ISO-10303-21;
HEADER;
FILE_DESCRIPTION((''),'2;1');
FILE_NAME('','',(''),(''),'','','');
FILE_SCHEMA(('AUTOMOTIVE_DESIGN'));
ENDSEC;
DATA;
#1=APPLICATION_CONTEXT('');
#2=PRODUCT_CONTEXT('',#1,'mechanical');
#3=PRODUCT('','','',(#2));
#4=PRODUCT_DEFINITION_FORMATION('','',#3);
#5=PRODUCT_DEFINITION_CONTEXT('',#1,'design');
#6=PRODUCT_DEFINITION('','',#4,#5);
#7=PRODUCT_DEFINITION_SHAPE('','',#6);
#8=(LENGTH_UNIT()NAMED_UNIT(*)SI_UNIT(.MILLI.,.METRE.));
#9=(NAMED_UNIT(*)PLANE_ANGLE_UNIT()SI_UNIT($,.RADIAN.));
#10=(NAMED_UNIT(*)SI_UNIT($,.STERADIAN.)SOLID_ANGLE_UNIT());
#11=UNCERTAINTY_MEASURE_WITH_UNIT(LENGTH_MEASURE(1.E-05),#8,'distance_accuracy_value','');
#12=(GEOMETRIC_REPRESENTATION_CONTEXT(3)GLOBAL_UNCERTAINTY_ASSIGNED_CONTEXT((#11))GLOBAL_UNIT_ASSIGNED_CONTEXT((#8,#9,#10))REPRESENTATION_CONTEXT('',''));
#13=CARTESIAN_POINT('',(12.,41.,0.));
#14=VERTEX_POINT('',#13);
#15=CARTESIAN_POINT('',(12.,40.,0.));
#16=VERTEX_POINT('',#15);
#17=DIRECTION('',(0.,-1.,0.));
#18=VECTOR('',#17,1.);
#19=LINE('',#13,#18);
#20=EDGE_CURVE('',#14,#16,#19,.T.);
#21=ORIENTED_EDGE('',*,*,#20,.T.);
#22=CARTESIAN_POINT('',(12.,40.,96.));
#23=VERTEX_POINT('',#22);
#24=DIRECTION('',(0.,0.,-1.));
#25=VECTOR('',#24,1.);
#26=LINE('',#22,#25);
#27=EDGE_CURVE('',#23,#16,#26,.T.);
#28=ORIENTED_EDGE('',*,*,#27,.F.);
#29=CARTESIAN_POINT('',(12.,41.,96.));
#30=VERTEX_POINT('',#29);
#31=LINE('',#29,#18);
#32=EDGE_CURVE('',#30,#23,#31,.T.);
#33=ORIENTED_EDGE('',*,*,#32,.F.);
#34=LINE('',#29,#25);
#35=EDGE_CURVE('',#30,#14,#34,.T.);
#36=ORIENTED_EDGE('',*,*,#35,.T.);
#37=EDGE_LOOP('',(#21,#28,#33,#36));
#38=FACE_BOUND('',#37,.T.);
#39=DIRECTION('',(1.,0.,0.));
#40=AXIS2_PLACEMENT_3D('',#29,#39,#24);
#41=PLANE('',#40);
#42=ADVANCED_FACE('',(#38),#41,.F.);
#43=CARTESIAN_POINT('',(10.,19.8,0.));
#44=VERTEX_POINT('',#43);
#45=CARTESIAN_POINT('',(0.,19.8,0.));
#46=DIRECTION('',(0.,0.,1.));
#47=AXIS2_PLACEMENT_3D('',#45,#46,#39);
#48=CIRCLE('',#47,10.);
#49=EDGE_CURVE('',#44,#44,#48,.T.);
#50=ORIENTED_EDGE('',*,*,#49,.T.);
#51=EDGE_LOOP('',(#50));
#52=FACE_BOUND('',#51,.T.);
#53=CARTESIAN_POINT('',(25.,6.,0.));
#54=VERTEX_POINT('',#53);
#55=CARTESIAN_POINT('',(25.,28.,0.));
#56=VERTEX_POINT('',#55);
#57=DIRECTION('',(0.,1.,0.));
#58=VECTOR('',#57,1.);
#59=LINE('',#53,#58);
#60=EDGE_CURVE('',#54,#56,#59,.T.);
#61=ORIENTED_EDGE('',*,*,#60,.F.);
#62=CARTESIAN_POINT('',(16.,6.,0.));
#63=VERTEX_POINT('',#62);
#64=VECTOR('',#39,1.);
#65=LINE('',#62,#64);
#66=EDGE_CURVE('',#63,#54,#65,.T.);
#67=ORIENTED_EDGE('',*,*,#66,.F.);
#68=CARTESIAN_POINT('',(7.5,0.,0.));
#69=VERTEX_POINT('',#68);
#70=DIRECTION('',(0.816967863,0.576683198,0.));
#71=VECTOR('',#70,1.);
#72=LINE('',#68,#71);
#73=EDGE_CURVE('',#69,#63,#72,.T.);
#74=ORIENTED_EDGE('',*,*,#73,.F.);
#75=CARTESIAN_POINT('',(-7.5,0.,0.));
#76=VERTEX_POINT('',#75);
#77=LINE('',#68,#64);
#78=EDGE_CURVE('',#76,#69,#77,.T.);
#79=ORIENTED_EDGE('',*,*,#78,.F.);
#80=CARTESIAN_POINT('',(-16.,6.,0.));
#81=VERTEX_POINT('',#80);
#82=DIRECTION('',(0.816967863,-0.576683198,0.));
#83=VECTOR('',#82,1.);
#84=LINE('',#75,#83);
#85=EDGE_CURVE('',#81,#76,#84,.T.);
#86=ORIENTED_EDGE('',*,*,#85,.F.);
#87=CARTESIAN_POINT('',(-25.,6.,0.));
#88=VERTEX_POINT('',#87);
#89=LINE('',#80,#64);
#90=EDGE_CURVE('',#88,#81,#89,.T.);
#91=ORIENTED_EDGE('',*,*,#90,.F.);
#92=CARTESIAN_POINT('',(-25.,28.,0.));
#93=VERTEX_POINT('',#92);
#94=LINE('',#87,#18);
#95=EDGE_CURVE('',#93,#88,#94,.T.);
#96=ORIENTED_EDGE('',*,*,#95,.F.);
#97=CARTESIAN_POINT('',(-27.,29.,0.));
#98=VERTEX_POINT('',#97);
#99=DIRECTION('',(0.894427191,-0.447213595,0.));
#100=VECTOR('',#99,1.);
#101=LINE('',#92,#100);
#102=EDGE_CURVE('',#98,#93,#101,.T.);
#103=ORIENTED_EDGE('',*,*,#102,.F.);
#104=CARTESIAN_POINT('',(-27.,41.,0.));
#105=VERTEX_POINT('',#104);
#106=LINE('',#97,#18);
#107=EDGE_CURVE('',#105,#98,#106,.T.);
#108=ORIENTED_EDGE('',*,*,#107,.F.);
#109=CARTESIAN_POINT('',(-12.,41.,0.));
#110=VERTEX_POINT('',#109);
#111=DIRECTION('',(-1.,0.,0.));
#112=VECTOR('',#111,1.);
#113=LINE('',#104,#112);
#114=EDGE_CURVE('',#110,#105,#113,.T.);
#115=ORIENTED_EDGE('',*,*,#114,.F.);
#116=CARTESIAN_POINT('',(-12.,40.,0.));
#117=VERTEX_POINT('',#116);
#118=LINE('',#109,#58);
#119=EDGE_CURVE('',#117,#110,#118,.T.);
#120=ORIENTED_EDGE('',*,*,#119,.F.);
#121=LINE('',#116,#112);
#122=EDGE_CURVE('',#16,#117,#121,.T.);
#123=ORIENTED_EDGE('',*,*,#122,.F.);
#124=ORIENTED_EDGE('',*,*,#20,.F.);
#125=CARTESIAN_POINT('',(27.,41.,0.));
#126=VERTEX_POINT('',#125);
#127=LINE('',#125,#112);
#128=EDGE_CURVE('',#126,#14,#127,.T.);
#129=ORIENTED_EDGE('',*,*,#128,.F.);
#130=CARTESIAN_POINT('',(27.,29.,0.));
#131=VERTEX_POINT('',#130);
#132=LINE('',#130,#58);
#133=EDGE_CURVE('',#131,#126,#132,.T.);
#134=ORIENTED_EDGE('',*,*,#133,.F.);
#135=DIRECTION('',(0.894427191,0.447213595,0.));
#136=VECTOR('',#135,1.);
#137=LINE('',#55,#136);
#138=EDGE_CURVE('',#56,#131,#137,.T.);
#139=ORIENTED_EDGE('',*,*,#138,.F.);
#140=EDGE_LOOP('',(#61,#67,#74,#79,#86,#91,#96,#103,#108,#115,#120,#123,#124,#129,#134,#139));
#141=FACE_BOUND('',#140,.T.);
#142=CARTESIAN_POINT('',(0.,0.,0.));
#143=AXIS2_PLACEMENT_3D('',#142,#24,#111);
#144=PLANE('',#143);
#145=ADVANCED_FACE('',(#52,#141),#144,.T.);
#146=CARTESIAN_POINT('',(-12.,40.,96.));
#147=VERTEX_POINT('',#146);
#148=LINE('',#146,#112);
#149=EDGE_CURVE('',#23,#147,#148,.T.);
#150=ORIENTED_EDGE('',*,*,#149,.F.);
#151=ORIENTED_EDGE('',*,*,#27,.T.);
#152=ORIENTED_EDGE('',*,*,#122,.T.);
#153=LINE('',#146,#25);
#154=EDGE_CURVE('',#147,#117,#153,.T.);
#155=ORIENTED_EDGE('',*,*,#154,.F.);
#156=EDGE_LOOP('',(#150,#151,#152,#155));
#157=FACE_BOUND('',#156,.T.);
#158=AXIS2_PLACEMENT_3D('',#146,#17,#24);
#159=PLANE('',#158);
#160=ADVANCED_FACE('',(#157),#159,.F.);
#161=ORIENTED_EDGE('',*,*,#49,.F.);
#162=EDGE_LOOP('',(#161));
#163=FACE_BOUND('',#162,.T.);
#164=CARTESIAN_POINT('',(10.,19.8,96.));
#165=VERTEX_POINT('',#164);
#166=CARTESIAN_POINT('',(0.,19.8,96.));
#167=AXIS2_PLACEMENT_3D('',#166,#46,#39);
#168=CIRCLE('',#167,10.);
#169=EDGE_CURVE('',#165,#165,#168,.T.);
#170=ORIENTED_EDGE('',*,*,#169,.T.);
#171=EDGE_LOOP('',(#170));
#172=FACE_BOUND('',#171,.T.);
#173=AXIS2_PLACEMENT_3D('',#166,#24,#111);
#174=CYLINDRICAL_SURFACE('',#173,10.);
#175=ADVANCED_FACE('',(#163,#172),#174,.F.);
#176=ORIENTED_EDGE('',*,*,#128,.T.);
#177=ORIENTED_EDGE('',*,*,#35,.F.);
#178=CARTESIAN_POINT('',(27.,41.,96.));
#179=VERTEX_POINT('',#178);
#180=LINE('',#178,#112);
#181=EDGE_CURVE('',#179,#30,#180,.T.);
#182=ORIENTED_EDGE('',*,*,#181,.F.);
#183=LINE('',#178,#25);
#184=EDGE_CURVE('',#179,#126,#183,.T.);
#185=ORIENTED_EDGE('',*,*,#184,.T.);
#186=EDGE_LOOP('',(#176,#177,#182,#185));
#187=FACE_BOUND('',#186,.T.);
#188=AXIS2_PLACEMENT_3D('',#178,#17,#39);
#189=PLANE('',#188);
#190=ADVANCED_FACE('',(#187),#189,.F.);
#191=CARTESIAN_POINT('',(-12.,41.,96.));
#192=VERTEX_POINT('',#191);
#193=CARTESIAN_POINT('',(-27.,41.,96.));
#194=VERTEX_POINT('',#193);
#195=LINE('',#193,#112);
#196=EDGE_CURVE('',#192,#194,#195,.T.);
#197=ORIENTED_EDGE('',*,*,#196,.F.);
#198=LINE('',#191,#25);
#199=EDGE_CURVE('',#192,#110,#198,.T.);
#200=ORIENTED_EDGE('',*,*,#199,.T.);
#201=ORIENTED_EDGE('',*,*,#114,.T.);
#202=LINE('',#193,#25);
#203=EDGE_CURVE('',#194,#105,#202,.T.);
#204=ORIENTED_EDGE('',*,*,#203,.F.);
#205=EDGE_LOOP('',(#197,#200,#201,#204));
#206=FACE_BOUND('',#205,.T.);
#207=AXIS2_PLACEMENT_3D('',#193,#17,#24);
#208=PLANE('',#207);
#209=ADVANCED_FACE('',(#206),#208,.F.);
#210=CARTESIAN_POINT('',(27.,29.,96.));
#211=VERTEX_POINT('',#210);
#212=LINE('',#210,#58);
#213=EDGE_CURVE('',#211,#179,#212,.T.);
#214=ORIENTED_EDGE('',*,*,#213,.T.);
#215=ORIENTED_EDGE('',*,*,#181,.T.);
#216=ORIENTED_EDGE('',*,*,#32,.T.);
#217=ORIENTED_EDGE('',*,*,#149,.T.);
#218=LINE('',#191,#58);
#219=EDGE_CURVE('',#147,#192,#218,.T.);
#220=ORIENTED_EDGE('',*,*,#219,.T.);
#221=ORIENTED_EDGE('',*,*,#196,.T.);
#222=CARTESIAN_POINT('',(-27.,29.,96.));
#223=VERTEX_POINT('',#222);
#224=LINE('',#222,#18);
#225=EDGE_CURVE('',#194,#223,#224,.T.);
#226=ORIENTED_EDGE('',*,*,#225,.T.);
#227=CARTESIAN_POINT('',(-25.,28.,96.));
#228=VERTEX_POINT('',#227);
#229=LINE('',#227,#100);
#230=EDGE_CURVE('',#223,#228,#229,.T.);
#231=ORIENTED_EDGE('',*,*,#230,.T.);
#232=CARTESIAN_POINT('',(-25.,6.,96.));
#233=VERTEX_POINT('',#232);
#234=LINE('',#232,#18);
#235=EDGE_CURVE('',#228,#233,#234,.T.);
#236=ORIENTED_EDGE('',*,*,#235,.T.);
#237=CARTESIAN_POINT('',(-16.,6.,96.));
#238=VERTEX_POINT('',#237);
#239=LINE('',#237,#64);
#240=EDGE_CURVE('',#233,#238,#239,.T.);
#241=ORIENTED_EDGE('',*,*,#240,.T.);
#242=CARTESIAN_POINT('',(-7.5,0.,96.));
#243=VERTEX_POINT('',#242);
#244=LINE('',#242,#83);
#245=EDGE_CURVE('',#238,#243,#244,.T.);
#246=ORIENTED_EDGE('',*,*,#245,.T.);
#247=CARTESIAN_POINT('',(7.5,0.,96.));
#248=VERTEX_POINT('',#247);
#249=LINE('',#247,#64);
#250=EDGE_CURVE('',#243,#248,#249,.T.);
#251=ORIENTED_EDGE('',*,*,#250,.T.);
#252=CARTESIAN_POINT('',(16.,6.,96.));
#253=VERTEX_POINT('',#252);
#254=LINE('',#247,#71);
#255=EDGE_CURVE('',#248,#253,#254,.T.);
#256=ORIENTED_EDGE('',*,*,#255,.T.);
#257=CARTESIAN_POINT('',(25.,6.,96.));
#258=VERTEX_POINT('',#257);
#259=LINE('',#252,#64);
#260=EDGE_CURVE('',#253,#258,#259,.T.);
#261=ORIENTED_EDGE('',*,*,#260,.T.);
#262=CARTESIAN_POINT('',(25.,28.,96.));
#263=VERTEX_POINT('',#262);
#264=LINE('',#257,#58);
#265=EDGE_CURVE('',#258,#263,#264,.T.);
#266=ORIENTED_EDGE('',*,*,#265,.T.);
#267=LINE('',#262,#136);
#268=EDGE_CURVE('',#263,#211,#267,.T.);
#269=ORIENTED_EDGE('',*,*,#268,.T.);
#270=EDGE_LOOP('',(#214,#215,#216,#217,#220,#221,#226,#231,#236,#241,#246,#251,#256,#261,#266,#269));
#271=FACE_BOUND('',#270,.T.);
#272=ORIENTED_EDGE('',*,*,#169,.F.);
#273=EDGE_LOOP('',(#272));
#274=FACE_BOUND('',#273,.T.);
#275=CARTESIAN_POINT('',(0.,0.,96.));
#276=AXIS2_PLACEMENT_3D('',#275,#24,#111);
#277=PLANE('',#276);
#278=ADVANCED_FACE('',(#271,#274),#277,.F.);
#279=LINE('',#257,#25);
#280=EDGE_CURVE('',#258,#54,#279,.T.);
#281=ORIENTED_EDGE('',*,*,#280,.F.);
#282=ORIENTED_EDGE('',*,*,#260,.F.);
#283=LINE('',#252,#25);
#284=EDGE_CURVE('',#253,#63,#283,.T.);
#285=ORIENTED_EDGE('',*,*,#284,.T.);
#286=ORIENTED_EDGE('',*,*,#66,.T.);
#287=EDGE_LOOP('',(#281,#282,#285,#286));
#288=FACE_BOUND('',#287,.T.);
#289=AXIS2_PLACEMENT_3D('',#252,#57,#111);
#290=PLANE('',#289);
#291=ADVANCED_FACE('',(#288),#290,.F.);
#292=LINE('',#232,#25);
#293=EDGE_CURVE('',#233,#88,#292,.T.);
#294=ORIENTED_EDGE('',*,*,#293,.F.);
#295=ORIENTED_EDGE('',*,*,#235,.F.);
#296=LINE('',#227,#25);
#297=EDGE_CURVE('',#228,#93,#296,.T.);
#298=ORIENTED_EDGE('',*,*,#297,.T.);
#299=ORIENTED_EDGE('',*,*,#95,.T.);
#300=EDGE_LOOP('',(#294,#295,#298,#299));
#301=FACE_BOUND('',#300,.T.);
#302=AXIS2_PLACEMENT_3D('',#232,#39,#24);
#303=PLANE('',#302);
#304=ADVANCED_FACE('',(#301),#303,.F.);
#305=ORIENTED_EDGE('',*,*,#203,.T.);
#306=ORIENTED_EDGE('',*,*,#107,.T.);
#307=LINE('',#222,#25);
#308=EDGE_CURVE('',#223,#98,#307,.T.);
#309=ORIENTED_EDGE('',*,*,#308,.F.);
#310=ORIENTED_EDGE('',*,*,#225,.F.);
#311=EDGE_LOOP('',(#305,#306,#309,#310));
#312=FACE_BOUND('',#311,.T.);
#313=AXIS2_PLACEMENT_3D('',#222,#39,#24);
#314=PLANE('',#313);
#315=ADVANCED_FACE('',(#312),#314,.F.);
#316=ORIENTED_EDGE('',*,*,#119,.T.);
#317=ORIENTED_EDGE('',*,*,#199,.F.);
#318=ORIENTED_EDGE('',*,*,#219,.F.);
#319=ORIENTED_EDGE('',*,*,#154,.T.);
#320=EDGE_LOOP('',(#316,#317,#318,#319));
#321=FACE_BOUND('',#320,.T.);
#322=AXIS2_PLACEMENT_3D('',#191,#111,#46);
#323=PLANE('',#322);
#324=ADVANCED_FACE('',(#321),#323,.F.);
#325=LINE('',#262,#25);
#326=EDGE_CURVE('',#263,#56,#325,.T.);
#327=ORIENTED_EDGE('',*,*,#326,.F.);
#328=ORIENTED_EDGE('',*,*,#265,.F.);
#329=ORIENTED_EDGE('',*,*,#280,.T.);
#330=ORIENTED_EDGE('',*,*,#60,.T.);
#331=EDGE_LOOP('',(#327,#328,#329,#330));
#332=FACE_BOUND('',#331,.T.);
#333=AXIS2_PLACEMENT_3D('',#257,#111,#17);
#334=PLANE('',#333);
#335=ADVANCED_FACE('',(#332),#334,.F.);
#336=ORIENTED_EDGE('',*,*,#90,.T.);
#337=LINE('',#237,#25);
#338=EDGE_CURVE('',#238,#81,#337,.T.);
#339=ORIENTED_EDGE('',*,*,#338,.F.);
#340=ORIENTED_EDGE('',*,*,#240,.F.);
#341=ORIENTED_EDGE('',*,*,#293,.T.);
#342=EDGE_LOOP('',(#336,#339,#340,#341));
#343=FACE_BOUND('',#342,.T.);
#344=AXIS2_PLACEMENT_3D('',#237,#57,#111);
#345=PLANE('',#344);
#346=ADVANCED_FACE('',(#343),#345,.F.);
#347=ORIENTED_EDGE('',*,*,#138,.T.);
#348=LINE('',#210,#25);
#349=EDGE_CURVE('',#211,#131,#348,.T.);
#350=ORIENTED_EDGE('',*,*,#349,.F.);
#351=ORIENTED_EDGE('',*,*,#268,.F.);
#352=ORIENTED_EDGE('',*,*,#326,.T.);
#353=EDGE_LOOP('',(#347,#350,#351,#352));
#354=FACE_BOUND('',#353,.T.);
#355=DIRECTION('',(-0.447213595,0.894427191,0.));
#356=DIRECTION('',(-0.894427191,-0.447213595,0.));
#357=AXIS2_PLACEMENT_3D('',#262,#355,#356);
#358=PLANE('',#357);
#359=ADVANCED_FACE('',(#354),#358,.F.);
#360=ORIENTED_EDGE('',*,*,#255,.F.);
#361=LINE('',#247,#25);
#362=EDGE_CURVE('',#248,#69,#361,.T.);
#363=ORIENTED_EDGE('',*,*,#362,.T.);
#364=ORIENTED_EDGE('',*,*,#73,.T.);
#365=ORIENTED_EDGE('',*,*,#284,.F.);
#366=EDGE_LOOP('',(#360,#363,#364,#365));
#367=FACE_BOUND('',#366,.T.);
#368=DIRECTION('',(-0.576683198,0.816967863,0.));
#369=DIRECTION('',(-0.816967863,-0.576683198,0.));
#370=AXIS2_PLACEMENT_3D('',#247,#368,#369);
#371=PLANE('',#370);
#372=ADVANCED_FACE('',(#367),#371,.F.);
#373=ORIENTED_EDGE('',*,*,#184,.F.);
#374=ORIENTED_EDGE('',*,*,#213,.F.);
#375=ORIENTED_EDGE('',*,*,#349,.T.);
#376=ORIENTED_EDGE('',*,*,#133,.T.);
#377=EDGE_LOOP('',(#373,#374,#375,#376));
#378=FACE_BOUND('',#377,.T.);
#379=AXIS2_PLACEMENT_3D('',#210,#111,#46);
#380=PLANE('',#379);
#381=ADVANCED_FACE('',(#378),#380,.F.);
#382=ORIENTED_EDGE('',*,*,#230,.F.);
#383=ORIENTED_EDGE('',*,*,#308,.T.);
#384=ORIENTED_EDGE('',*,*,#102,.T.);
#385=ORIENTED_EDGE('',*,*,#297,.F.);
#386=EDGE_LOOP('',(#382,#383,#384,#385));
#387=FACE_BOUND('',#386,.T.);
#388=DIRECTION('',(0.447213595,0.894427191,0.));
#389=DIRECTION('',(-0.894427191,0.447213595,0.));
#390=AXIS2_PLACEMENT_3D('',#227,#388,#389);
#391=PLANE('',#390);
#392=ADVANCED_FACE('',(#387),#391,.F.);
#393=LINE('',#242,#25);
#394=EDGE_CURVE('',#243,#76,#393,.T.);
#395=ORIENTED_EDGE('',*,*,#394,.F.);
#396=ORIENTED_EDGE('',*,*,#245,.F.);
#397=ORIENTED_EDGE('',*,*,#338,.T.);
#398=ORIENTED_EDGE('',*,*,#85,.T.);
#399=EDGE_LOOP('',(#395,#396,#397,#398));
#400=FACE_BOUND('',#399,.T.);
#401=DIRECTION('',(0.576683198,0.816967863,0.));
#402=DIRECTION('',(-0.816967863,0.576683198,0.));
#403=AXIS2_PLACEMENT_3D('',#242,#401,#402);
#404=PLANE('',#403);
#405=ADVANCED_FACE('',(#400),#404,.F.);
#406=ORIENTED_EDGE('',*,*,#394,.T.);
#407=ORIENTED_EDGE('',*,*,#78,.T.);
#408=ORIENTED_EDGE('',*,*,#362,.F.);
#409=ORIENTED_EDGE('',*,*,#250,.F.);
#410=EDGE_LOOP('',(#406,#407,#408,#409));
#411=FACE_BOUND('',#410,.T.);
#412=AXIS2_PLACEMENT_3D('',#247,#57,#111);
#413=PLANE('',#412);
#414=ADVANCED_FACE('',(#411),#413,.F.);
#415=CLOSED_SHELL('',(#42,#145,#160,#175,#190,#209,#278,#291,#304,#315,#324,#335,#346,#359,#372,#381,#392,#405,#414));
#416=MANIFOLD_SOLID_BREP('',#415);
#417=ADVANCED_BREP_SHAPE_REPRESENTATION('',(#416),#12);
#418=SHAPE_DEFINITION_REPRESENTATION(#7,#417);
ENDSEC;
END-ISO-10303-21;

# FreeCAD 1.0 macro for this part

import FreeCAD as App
import Part
import Sketcher

V = App.Vector
Q = App.Units.Quantity


def add_polygon(sketch, points):
    """Adds a closed chain of lines whose ends are joined by coincident constraints."""
    first, n = sketch.GeometryCount, len(points)
    for a, b in zip(points, points[1:] + points[:1]):
        sketch.addGeometry(Part.LineSegment(App.Vector(*a, 0), App.Vector(*b, 0)), False)
    for i in range(n):
        sketch.addConstraint(Sketcher.Constraint("Coincident", first + i, 2, first + (i + 1) % n, 1))

doc = App.newDocument("Part")
body = doc.addObject("PartDesign::Body", "Body")

sketch1 = doc.addObject("Sketcher::SketchObject", "Sketch")
body.addObject(sketch1)
sketch1.AttachmentSupport = (doc.XY_Plane, [""])
sketch1.MapMode = "FlatFace"
add_polygon(sketch1, [(-7.5, 0), (7.5, 0), (16, 6), (25, 6), (25, 28), (27, 29), (27, 41), (12, 41), (12, 40), (-12, 40), (-12, 41), (-27, 41), (-27, 29), (-25, 28), (-25, 6), (-16, 6)])
sketch1.addGeometry(Part.Circle(V(0, 19.8, 0), V(0, 0, 1), 10), False)
sketch1.addConstraint([
    Sketcher.Constraint("Horizontal", 0),
    Sketcher.Constraint("Horizontal", 2),
    Sketcher.Constraint("Vertical", 3),
    Sketcher.Constraint("Vertical", 5),
    Sketcher.Constraint("Horizontal", 6),
    Sketcher.Constraint("Vertical", 7),
    Sketcher.Constraint("Horizontal", 8),
    Sketcher.Constraint("Vertical", 9),
    Sketcher.Constraint("Horizontal", 10),
    Sketcher.Constraint("Vertical", 11),
    Sketcher.Constraint("Vertical", 13),
    Sketcher.Constraint("Horizontal", 14),
    Sketcher.Constraint("Symmetric", 0, 2, 15, 2, -1, 1),
    Sketcher.Constraint("Symmetric", 6, 2, 9, 2, -2),
    Sketcher.Constraint("Symmetric", 4, 2, 11, 2, -2),
    Sketcher.Constraint("Symmetric", 3, 2, 12, 2, -2),
    Sketcher.Constraint("Symmetric", 1, 2, 14, 2, -2),
    Sketcher.Constraint("PointOnObject", 16, 3, -2),
    Sketcher.Constraint("Equal", 0, 6),
    Sketcher.Constraint("Diameter", 16, Q("20 mm")),
    Sketcher.Constraint("DistanceX", 0, 1, 0, 2, Q("15 mm")),
    Sketcher.Constraint("DistanceX", 2, 1, 2, 2, Q("9 mm")),
    Sketcher.Constraint("DistanceX", 8, 2, 8, 1, Q("24 mm")),
    Sketcher.Constraint("DistanceY", 3, 1, 3, 2, Q("22 mm")),
    Sketcher.Constraint("DistanceY", 5, 1, 5, 2, Q("12 mm")),
    Sketcher.Constraint("DistanceY", 7, 2, 7, 1, Q("1 mm")),
    Sketcher.Constraint("DistanceX", -1, 1, 1, 2, Q("16 mm")),
    Sketcher.Constraint("DistanceY", -1, 1, 1, 2, Q("6 mm")),
    Sketcher.Constraint("DistanceY", -1, 1, 4, 2, Q("29 mm")),
    Sketcher.Constraint("DistanceY", -1, 1, 16, 3, Q("19.8 mm")),
])
pad1 = doc.addObject("PartDesign::Pad", "Pad")
body.addObject(pad1)
pad1.Profile = sketch1
pad1.Length = 96

doc.recompute()
